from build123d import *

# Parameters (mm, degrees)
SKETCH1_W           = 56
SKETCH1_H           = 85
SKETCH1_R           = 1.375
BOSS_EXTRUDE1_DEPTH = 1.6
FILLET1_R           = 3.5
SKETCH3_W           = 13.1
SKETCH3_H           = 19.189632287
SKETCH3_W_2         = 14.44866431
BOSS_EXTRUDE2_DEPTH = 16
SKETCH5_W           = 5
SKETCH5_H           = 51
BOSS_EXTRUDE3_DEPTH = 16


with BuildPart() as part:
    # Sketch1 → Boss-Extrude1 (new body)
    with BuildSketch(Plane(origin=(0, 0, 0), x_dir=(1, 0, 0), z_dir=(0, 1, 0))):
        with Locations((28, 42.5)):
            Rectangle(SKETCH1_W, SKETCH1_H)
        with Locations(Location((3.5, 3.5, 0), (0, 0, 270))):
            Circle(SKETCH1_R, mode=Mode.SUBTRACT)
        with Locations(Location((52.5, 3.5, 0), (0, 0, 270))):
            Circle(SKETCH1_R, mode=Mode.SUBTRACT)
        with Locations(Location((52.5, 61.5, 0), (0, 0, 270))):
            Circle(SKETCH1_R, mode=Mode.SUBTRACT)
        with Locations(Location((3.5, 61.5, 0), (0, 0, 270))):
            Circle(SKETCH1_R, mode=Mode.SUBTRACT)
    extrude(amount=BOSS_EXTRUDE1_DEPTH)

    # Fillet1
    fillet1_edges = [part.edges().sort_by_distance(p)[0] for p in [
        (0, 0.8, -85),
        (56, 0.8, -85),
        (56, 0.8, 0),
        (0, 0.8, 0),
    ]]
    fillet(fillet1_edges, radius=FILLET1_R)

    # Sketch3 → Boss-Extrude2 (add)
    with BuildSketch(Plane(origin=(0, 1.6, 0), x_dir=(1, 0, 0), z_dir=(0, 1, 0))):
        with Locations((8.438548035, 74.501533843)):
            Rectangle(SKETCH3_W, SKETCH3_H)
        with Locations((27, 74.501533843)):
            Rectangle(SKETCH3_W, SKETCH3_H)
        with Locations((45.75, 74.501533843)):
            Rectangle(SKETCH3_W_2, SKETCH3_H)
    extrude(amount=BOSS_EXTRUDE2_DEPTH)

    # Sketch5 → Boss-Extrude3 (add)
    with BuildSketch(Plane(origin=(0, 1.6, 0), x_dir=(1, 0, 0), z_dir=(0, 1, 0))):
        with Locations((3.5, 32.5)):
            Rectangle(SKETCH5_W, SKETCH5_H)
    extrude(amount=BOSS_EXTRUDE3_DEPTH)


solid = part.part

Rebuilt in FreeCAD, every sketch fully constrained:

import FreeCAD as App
import Part
import Sketcher


def edges_at(feature, points):
    """Names of the edges that pass closest to the given points."""
    edges = feature.Shape.Edges
    near = lambda p: min(range(len(edges)), key=lambda i: edges[i].distToShape(Part.Vertex(*p))[0])
    return sorted({f"Edge{near(p) + 1}" for p in points})

doc = App.newDocument("Part")
body = doc.addObject("PartDesign::Body", "Body")

# Sketch on XZ plane
sketch1 = doc.addObject("Sketcher::SketchObject", "Sketch")
body.addObject(sketch1)
sketch1.AttachmentSupport = (doc.XZ_Plane, [""])
sketch1.MapMode = "FlatFace"
sketch1.addGeometry([
    Part.LineSegment(App.Vector(0, -85, 0), App.Vector(0, 0, 0)),  # 0
    Part.LineSegment(App.Vector(0, 0, 0), App.Vector(56, 0, 0)),  # 1
    Part.LineSegment(App.Vector(56, 0, 0), App.Vector(56, -85, 0)),  # 2
    Part.LineSegment(App.Vector(56, -85, 0), App.Vector(0, -85, 0)),  # 3
    Part.Circle(App.Vector(3.5, -3.5, 0), App.Vector(0, 0, 1), 1.4),  # 4
    Part.Circle(App.Vector(52.5, -3.5, 0), App.Vector(0, 0, 1), 1.4),  # 5
    Part.Circle(App.Vector(3.5, -61.5, 0), App.Vector(0, 0, 1), 1.4),  # 6
    Part.Circle(App.Vector(52.5, -61.5, 0), App.Vector(0, 0, 1), 1.4),  # 7
], False)
sketch1.addConstraint([
    Sketcher.Constraint("Coincident", 0, 2, 1, 1),
    Sketcher.Constraint("Coincident", 1, 2, 2, 1),
    Sketcher.Constraint("Coincident", 2, 2, 3, 1),
    Sketcher.Constraint("Coincident", 3, 2, 0, 1),
    Sketcher.Constraint("Vertical", 0),
    Sketcher.Constraint("Horizontal", 1),
    Sketcher.Constraint("Vertical", 2),
    Sketcher.Constraint("Horizontal", 3),
    Sketcher.Constraint("Coincident", 0, 2, -1, 1),
    Sketcher.Constraint("Equal", 4, 5),
    Sketcher.Constraint("Equal", 5, 6),
    Sketcher.Constraint("Equal", 6, 7),
    Sketcher.Constraint("Horizontal", 4, 3, 5, 3),
    Sketcher.Constraint("Horizontal", 6, 3, 7, 3),
    Sketcher.Constraint("Vertical", 4, 3, 6, 3),
    Sketcher.Constraint("Vertical", 5, 3, 7, 3),
    Sketcher.Constraint("Diameter", 4, 2.75),
    Sketcher.Constraint("DistanceX", 1, 1, 1, 2, 56.0),
    Sketcher.Constraint("DistanceY", 0, 1, 0, 2, 85.0),
    Sketcher.Constraint("DistanceX", 4, 3, 5, 3, 49.0),
    Sketcher.Constraint("DistanceY", 6, 3, 4, 3, 58.0),
    Sketcher.Constraint("DistanceX", -1, 1, 4, 3, 3.5),
    Sketcher.Constraint("DistanceY", 4, 3, -1, 1, 3.5),
])
pad1 = doc.addObject("PartDesign::Pad", "Pad")
body.addObject(pad1)
pad1.Profile = sketch1
pad1.Length = 1.6
pad1.Reversed = True
doc.recompute()

fillet = doc.addObject("PartDesign::Fillet", "Fillet")
body.addObject(fillet)
fillet.Base = (pad1, edges_at(pad1, [
    (0, 0.8, -85),
    (56, 0.8, -85),
    (56, 0.8, 0),
    (0, 0.8, 0),
]))
fillet.Radius = 3.5

# Sketch on XZ plane
sketch2 = doc.addObject("Sketcher::SketchObject", "Sketch001")
body.addObject(sketch2)
sketch2.AttachmentSupport = (doc.XZ_Plane, [""])
sketch2.MapMode = "FlatFace"
sketch2.AttachmentOffset = App.Placement(App.Vector(0, 0, -1.6), App.Rotation())
sketch2.addGeometry([
    Part.LineSegment(App.Vector(2, -84, 0), App.Vector(2, -65, 0)),  # 0
    Part.LineSegment(App.Vector(2, -65, 0), App.Vector(15, -65, 0)),  # 1
    Part.LineSegment(App.Vector(15, -65, 0), App.Vector(15, -84, 0)),  # 2
    Part.LineSegment(App.Vector(15, -84, 0), App.Vector(2, -84, 0)),  # 3
    Part.LineSegment(App.Vector(20, -84, 0), App.Vector(20, -65, 0)),  # 4
    Part.LineSegment(App.Vector(20, -65, 0), App.Vector(34, -65, 0)),  # 5
    Part.LineSegment(App.Vector(34, -65, 0), App.Vector(34, -84, 0)),  # 6
    Part.LineSegment(App.Vector(34, -84, 0), App.Vector(20, -84, 0)),  # 7
    Part.LineSegment(App.Vector(39, -84, 0), App.Vector(39, -65, 0)),  # 8
    Part.LineSegment(App.Vector(39, -65, 0), App.Vector(53, -65, 0)),  # 9
    Part.LineSegment(App.Vector(53, -65, 0), App.Vector(53, -84, 0)),  # 10
    Part.LineSegment(App.Vector(53, -84, 0), App.Vector(39, -84, 0)),  # 11
], False)
sketch2.addConstraint([
    Sketcher.Constraint("Coincident", 0, 2, 1, 1),
    Sketcher.Constraint("Coincident", 1, 2, 2, 1),
    Sketcher.Constraint("Coincident", 2, 2, 3, 1),
    Sketcher.Constraint("Coincident", 3, 2, 0, 1),
    Sketcher.Constraint("Coincident", 4, 2, 5, 1),
    Sketcher.Constraint("Coincident", 5, 2, 6, 1),
    Sketcher.Constraint("Coincident", 6, 2, 7, 1),
    Sketcher.Constraint("Coincident", 7, 2, 4, 1),
    Sketcher.Constraint("Coincident", 8, 2, 9, 1),
    Sketcher.Constraint("Coincident", 9, 2, 10, 1),
    Sketcher.Constraint("Coincident", 10, 2, 11, 1),
    Sketcher.Constraint("Coincident", 11, 2, 8, 1),
    Sketcher.Constraint("Vertical", 0),
    Sketcher.Constraint("Horizontal", 1),
    Sketcher.Constraint("Vertical", 2),
    Sketcher.Constraint("Horizontal", 3),
    Sketcher.Constraint("Vertical", 4),
    Sketcher.Constraint("Horizontal", 5),
    Sketcher.Constraint("Vertical", 6),
    Sketcher.Constraint("Horizontal", 7),
    Sketcher.Constraint("Vertical", 8),
    Sketcher.Constraint("Horizontal", 9),
    Sketcher.Constraint("Vertical", 10),
    Sketcher.Constraint("Horizontal", 11),
    Sketcher.Constraint("Horizontal", 1, 2, 4, 2),
    Sketcher.Constraint("Horizontal", 3, 2, 6, 2),
    Sketcher.Constraint("Horizontal", 5, 2, 8, 2),
    Sketcher.Constraint("Horizontal", 7, 2, 10, 2),
    Sketcher.Constraint("Equal", 3, 5),
    Sketcher.Constraint("DistanceX", 1, 1, 1, 2, 13.1),
    Sketcher.Constraint("DistanceX", -1, 1, 4, 2, 20.45),
    Sketcher.Constraint("DistanceX", 9, 1, 9, 2, 14.448664),
    Sketcher.Constraint("DistanceY", 0, 1, 0, 2, 19.189632),
    Sketcher.Constraint("DistanceX", -1, 1, 0, 2, 1.888548),
    Sketcher.Constraint("DistanceY", 2, 2, -1, 1, 84.09635),
    Sketcher.Constraint("DistanceX", 1, 2, 8, 2, 23.53712),
])
pad2 = doc.addObject("PartDesign::Pad", "Pad001")
body.addObject(pad2)
pad2.Profile = sketch2
pad2.Length = 16
pad2.Reversed = True

# Sketch on XZ plane
sketch3 = doc.addObject("Sketcher::SketchObject", "Sketch002")
body.addObject(sketch3)
sketch3.AttachmentSupport = (doc.XZ_Plane, [""])
sketch3.MapMode = "FlatFace"
sketch3.AttachmentOffset = App.Placement(App.Vector(0, 0, -1.6), App.Rotation())
sketch3.addGeometry([
    Part.LineSegment(App.Vector(1, -58, 0), App.Vector(1, -7, 0)),
    Part.LineSegment(App.Vector(1, -7, 0), App.Vector(6, -7, 0)),
    Part.LineSegment(App.Vector(6, -7, 0), App.Vector(6, -58, 0)),
    Part.LineSegment(App.Vector(6, -58, 0), App.Vector(1, -58, 0)),
], False)
sketch3.addConstraint([
    Sketcher.Constraint("Coincident", 0, 2, 1, 1),
    Sketcher.Constraint("Coincident", 1, 2, 2, 1),
    Sketcher.Constraint("Coincident", 2, 2, 3, 1),
    Sketcher.Constraint("Coincident", 3, 2, 0, 1),
    Sketcher.Constraint("Vertical", 0),
    Sketcher.Constraint("Horizontal", 1),
    Sketcher.Constraint("Vertical", 2),
    Sketcher.Constraint("Horizontal", 3),
    Sketcher.Constraint("DistanceX", 1, 1, 1, 2, 5.0),
    Sketcher.Constraint("DistanceY", 0, 1, 0, 2, 51.0),
    Sketcher.Constraint("DistanceX", -1, 1, 0, 2, 1.0),
    Sketcher.Constraint("DistanceY", 0, 2, -1, 1, 7.0),
])
pad3 = doc.addObject("PartDesign::Pad", "Pad002")
body.addObject(pad3)
pad3.Profile = sketch3
pad3.Length = 16
pad3.Reversed = True

doc.recompute()
